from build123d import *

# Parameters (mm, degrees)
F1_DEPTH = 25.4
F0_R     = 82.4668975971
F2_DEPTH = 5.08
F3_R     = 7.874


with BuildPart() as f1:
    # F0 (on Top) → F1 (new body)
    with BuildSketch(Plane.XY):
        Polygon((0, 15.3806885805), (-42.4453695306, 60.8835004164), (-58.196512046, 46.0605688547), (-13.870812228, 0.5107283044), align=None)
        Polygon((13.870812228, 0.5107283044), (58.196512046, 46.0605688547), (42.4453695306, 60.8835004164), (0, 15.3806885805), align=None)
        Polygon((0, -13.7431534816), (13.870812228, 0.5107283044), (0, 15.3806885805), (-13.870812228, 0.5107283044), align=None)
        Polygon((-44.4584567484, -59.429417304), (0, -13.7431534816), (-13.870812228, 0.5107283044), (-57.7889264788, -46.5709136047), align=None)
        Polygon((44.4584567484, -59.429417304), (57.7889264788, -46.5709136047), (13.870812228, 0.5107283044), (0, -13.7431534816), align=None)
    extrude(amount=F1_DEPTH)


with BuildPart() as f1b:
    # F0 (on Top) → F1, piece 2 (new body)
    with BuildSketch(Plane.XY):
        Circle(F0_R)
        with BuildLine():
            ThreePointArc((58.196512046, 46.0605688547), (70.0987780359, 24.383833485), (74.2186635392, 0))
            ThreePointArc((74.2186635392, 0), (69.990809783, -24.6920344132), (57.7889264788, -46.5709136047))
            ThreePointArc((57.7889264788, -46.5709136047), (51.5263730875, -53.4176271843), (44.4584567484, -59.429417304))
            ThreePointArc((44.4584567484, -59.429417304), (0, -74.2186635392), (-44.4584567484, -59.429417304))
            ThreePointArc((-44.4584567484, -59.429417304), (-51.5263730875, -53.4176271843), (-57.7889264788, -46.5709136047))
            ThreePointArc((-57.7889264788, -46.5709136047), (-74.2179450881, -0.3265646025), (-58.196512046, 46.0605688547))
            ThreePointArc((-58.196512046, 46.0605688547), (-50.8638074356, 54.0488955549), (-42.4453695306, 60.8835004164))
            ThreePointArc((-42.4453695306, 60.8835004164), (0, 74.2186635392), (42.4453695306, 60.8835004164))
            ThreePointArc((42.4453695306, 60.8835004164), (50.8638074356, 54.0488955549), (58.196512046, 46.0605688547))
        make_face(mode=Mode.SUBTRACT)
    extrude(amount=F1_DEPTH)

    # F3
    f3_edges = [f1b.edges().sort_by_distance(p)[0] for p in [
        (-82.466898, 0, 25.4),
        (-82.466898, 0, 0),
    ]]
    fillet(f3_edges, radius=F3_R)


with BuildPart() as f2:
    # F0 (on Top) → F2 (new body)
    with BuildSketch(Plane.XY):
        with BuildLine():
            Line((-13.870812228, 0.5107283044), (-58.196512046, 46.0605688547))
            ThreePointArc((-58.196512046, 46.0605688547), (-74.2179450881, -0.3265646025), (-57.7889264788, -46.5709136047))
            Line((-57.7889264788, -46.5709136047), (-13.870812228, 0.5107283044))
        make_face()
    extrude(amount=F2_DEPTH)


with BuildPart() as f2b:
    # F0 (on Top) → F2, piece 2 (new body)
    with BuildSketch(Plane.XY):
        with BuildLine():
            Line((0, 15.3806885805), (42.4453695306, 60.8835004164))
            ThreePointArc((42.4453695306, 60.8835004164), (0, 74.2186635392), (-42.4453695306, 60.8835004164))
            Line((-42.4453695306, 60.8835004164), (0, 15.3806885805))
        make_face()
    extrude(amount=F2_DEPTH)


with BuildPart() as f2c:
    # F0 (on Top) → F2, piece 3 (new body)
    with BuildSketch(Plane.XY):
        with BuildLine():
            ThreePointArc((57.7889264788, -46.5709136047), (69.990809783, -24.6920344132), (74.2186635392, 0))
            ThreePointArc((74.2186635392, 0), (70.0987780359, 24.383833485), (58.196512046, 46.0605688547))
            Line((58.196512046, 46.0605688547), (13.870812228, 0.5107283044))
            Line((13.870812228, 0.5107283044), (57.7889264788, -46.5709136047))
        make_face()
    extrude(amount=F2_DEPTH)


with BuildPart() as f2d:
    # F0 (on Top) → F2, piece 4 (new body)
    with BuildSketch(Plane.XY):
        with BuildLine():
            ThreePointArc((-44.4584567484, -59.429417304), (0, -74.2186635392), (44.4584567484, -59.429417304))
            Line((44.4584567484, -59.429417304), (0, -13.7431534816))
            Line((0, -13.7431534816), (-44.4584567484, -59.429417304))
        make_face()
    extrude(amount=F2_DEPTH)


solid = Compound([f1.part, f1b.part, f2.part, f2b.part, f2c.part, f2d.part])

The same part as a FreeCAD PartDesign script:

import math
import FreeCAD as App
import Part
import Sketcher

V = App.Vector
Q = App.Units.Quantity


def edges_at(feature, points):
    """Names of the edges that pass closest to the given points."""
    edges = feature.Shape.Edges
    near = lambda p: min(range(len(edges)), key=lambda i: edges[i].distToShape(Part.Vertex(*p))[0])
    return sorted({f"Edge{near(p) + 1}" for p in points})


def add_polygon(sketch, points):
    """Adds a closed chain of lines whose ends are joined by coincident constraints."""
    first, n = sketch.GeometryCount, len(points)
    for a, b in zip(points, points[1:] + points[:1]):
        sketch.addGeometry(Part.LineSegment(App.Vector(*a, 0), App.Vector(*b, 0)), False)
    for i in range(n):
        sketch.addConstraint(Sketcher.Constraint("Coincident", first + i, 2, first + (i + 1) % n, 1))

doc = App.newDocument("Part")
body = doc.addObject("PartDesign::Body", "Body")

# Sketch on XY plane
sketch1 = doc.addObject("Sketcher::SketchObject", "Sketch")
body.addObject(sketch1)
sketch1.AttachmentSupport = (doc.XY_Plane, [""])
sketch1.MapMode = "FlatFace"
add_polygon(sketch1, [(0, 15.380689), (-42.44537, 60.8835), (-58.196512, 46.060569), (-13.870812, 0.510728), (-57.788926, -46.570914), (-44.458457, -59.429417), (0, -13.743153), (44.458457, -59.429417), (57.788926, -46.570914), (13.870812, 0.510728), (58.196512, 46.060569), (42.44537, 60.8835)])  # lines 0-11
sketch1.addConstraint(Sketcher.Constraint("Symmetric", 4, 2, 6, 2, -2))
sketch1.addConstraint(Sketcher.Constraint("Symmetric", 3, 2, 7, 2, -2))
sketch1.addConstraint(Sketcher.Constraint("Symmetric", 2, 2, 8, 2, -2))
sketch1.addConstraint(Sketcher.Constraint("Symmetric", 1, 2, 9, 2, -2))
sketch1.addConstraint(Sketcher.Constraint("Symmetric", 0, 2, 10, 2, -2))
sketch1.addConstraint(Sketcher.Constraint("PointOnObject", 5, 2, -2))
sketch1.addConstraint(Sketcher.Constraint("PointOnObject", 11, 2, -2))
sketch1.addConstraint(Sketcher.Constraint("Parallel", 2, 6))
sketch1.addConstraint(Sketcher.Constraint("Parallel", 0, 8))
sketch1.addConstraint(Sketcher.Constraint("Distance", 2, 63.557499))
sketch1.addConstraint(Sketcher.Constraint("DistanceY", -1, 1, 0, 2, 60.8835))
sketch1.addConstraint(Sketcher.Constraint("DistanceX", 1, 2, 2, 2, 44.3257))
sketch1.addConstraint(Sketcher.Constraint("DistanceX", 0, 2, -1, 1, 42.44537))
sketch1.addConstraint(Sketcher.Constraint("DistanceY", -1, 1, 1, 2, 46.060569))
sketch1.addConstraint(Sketcher.Constraint("DistanceY", -1, 1, 11, 2, 15.380689))
sketch1.addConstraint(Sketcher.Constraint("DistanceY", 3, 2, 2, 2, 47.081642))
sketch1.addConstraint(Sketcher.Constraint("DistanceX", 3, 2, 4, 2, 13.33047))
sketch1.addConstraint(Sketcher.Constraint("DistanceY", 5, 2, 2, 2, 14.253882))
sketch1.addConstraint(Sketcher.Constraint("DistanceX", 2, 2, 6, 2, 58.329269))
pad1 = doc.addObject("PartDesign::Pad", "Pad")
body.addObject(pad1)
pad1.Profile = sketch1
pad1.Length = Q("1 in")
body2 = doc.addObject("PartDesign::Body", "Body001")

# Sketch on XY plane
sketch2 = doc.addObject("Sketcher::SketchObject", "Sketch001")
body2.addObject(sketch2)
sketch2.AttachmentSupport = (doc.getObject("XY_Plane001"), [""])
sketch2.MapMode = "FlatFace"
sketch2.addGeometry(Part.Circle(V(0, 0, 0), V(0, 0, 1), 82.466898), False)
sketch2.addGeometry(Part.ArcOfCircle(Part.Circle(V(0, 0, 0), V(0, 0, 1), 74.218664), math.radians(38.360422), math.radians(55.117442)), False)
sketch2.addGeometry(Part.ArcOfCircle(Part.Circle(V(0, 0, 0), V(0, 0, 1), 74.218664), math.radians(0), math.radians(38.360422)), False)
sketch2.addGeometry(Part.ArcOfCircle(Part.Circle(V(0, 0, 0), V(0, 0, 1), 74.218664), math.radians(-38.86463), math.radians(0)), False)
sketch2.addGeometry(Part.ArcOfCircle(Part.Circle(V(0, 0, 0), V(0, 0, 1), 74.218664), math.radians(-53.200264), math.radians(-38.86463)), False)
sketch2.addGeometry(Part.ArcOfCircle(Part.Circle(V(0, 0, 0), V(0, 0, 1), 74.218664), math.radians(-126.799736), math.radians(-53.200264)), False)
sketch2.addGeometry(Part.ArcOfCircle(Part.Circle(V(0, 0, 0), V(0, 0, 1), 74.218664), math.radians(-141.13537), math.radians(-126.799736)), False)
sketch2.addGeometry(Part.ArcOfCircle(Part.Circle(V(0, 0, 0), V(0, 0, 1), 74.218664), math.radians(141.639578), math.radians(218.86463)), False)
sketch2.addGeometry(Part.ArcOfCircle(Part.Circle(V(0, 0, 0), V(0, 0, 1), 74.218664), math.radians(124.882558), math.radians(141.639578)), False)
sketch2.addGeometry(Part.ArcOfCircle(Part.Circle(V(0, 0, 0), V(0, 0, 1), 74.218664), math.radians(55.117442), math.radians(124.882558)), False)
sketch2.addConstraint(Sketcher.Constraint("Tangent", 1, 1, 2, 2))
sketch2.addConstraint(Sketcher.Constraint("Tangent", 2, 1, 3, 2))
sketch2.addConstraint(Sketcher.Constraint("Tangent", 3, 1, 4, 2))
sketch2.addConstraint(Sketcher.Constraint("Tangent", 4, 1, 5, 2))
sketch2.addConstraint(Sketcher.Constraint("Tangent", 5, 1, 6, 2))
sketch2.addConstraint(Sketcher.Constraint("Tangent", 6, 1, 7, 2))
sketch2.addConstraint(Sketcher.Constraint("Tangent", 7, 1, 8, 2))
sketch2.addConstraint(Sketcher.Constraint("Tangent", 8, 1, 9, 2))
sketch2.addConstraint(Sketcher.Constraint("Tangent", 9, 1, 1, 2))
sketch2.addConstraint(Sketcher.Constraint("Coincident", 0, 3, -1, 1))
sketch2.addConstraint(Sketcher.Constraint("Coincident", 1, 3, -1, 1))
sketch2.addConstraint(Sketcher.Constraint("Coincident", 3, 3, -1, 1))
sketch2.addConstraint(Sketcher.Constraint("Coincident", 5, 3, -1, 1))
sketch2.addConstraint(Sketcher.Constraint("Coincident", 7, 3, -1, 1))
sketch2.addConstraint(Sketcher.Constraint("PointOnObject", 2, 1, -1))
sketch2.addConstraint(Sketcher.Constraint("Horizontal", 4, 1, 5, 1))
sketch2.addConstraint(Sketcher.Constraint("Horizontal", 3, 1, 6, 1))
sketch2.addConstraint(Sketcher.Constraint("Horizontal", 1, 1, 7, 1))
sketch2.addConstraint(Sketcher.Constraint("Horizontal", 8, 1, 9, 1))
sketch2.addConstraint(Sketcher.Constraint("Diameter", 0, 164.933795))
sketch2.addConstraint(Sketcher.Constraint("Radius", 1, 74.218664))
sketch2.addConstraint(Sketcher.Constraint("DistanceY", -1, 1, 8, 1, 60.8835))
sketch2.addConstraint(Sketcher.Constraint("DistanceY", -1, 1, 1, 1, 46.060569))
sketch2.addConstraint(Sketcher.Constraint("DistanceX", 4, 1, 3, 1, 13.33047))
sketch2.addConstraint(Sketcher.Constraint("DistanceX", -1, 1, 3, 1, 57.788926))
pad2 = doc.addObject("PartDesign::Pad", "Pad001")
body2.addObject(pad2)
pad2.Profile = sketch2
pad2.Length = Q("1 in")
doc.recompute()

fillet = doc.addObject("PartDesign::Fillet", "Fillet")
body2.addObject(fillet)
fillet.Base = (pad2, edges_at(pad2, [(-82.467, 0, 25.4), (-82.467, 0, 0)]))
fillet.Radius = Q("0.31 in")
body3 = doc.addObject("PartDesign::Body", "Body002")

# Sketch on XY plane
sketch3 = doc.addObject("Sketcher::SketchObject", "Sketch002")
body3.addObject(sketch3)
sketch3.AttachmentSupport = (doc.getObject("XY_Plane002"), [""])
sketch3.MapMode = "FlatFace"
sketch3.addGeometry(Part.LineSegment(V(-13.870812, 0.510728, 0), V(-58.196512, 46.060569, 0)), False)
sketch3.addGeometry(Part.ArcOfCircle(Part.Circle(V(0, 0, 0), V(0, 0, 1), 74.218664), math.radians(141.639578), math.radians(218.86463)), False)
sketch3.addGeometry(Part.LineSegment(V(-57.788926, -46.570914, 0), V(-13.870812, 0.510728, 0)), False)
sketch3.addConstraint(Sketcher.Constraint("Coincident", 0, 2, 1, 1))
sketch3.addConstraint(Sketcher.Constraint("Coincident", 1, 2, 2, 1))
sketch3.addConstraint(Sketcher.Constraint("Coincident", 2, 2, 0, 1))
sketch3.addConstraint(Sketcher.Constraint("Coincident", 1, 3, -1, 1))
sketch3.addConstraint(Sketcher.Constraint("Radius", 1, 74.218664))
sketch3.addConstraint(Sketcher.Constraint("Distance", 0, 63.557499))
sketch3.addConstraint(Sketcher.Constraint("DistanceX", 0, 2, 2, 2, 44.3257))
sketch3.addConstraint(Sketcher.Constraint("DistanceY", -1, 1, 0, 2, 46.060569))
sketch3.addConstraint(Sketcher.Constraint("DistanceY", 1, 2, 2, 2, 47.081642))
pad3 = doc.addObject("PartDesign::Pad", "Pad002")
body3.addObject(pad3)
pad3.Profile = sketch3
pad3.Length = Q("0.2 in")
body4 = doc.addObject("PartDesign::Body", "Body003")

# Sketch on XY plane
sketch4 = doc.addObject("Sketcher::SketchObject", "Sketch003")
body4.addObject(sketch4)
sketch4.AttachmentSupport = (doc.getObject("XY_Plane003"), [""])
sketch4.MapMode = "FlatFace"
sketch4.addGeometry(Part.LineSegment(V(0, 15.380689, 0), V(42.44537, 60.8835, 0)), False)
sketch4.addGeometry(Part.ArcOfCircle(Part.Circle(V(0, 0, 0), V(0, 0, 1), 74.218664), math.radians(55.117442), math.radians(124.882558)), False)
sketch4.addGeometry(Part.LineSegment(V(-42.44537, 60.8835, 0), V(0, 15.380689, 0)), False)
sketch4.addConstraint(Sketcher.Constraint("Coincident", 0, 2, 1, 1))
sketch4.addConstraint(Sketcher.Constraint("Coincident", 1, 2, 2, 1))
sketch4.addConstraint(Sketcher.Constraint("Coincident", 2, 2, 0, 1))
sketch4.addConstraint(Sketcher.Constraint("Coincident", 1, 3, -1, 1))
sketch4.addConstraint(Sketcher.Constraint("PointOnObject", 2, 2, -2))
sketch4.addConstraint(Sketcher.Constraint("Horizontal", 0, 2, 1, 2))
sketch4.addConstraint(Sketcher.Constraint("Radius", 1, 74.218664))
sketch4.addConstraint(Sketcher.Constraint("DistanceY", -1, 1, 0, 2, 60.8835))
sketch4.addConstraint(Sketcher.Constraint("DistanceY", -1, 1, 2, 2, 15.380689))
pad4 = doc.addObject("PartDesign::Pad", "Pad003")
body4.addObject(pad4)
pad4.Profile = sketch4
pad4.Length = Q("0.2 in")
body5 = doc.addObject("PartDesign::Body", "Body004")

# Sketch on XY plane
sketch5 = doc.addObject("Sketcher::SketchObject", "Sketch004")
body5.addObject(sketch5)
sketch5.AttachmentSupport = (doc.getObject("XY_Plane004"), [""])
sketch5.MapMode = "FlatFace"
sketch5.addGeometry(Part.ArcOfCircle(Part.Circle(V(0, 0, 0), V(0, 0, 1), 74.218664), math.radians(-38.86463), math.radians(0)), False)
sketch5.addGeometry(Part.ArcOfCircle(Part.Circle(V(0, 0, 0), V(0, 0, 1), 74.218664), math.radians(0), math.radians(38.360422)), False)
sketch5.addGeometry(Part.LineSegment(V(58.196512, 46.060569, 0), V(13.870812, 0.510728, 0)), False)
sketch5.addGeometry(Part.LineSegment(V(13.870812, 0.510728, 0), V(57.788926, -46.570914, 0)), False)
sketch5.addConstraint(Sketcher.Constraint("Tangent", 0, 2, 1, 1))
sketch5.addConstraint(Sketcher.Constraint("Coincident", 1, 2, 2, 1))
sketch5.addConstraint(Sketcher.Constraint("Coincident", 2, 2, 3, 1))
sketch5.addConstraint(Sketcher.Constraint("Coincident", 3, 2, 0, 1))
sketch5.addConstraint(Sketcher.Constraint("Coincident", 0, 3, -1, 1))
sketch5.addConstraint(Sketcher.Constraint("Equal", 0, 1))
sketch5.addConstraint(Sketcher.Constraint("PointOnObject", 0, 2, -1))
sketch5.addConstraint(Sketcher.Constraint("Radius", 0, 74.218664))
sketch5.addConstraint(Sketcher.Constraint("Distance", 2, 63.557499))
sketch5.addConstraint(Sketcher.Constraint("DistanceX", 2, 2, 1, 2, 44.3257))
sketch5.addConstraint(Sketcher.Constraint("DistanceY", -1, 1, 1, 2, 46.060569))
sketch5.addConstraint(Sketcher.Constraint("DistanceY", 3, 2, 2, 2, 47.081642))
pad5 = doc.addObject("PartDesign::Pad", "Pad004")
body5.addObject(pad5)
pad5.Profile = sketch5
pad5.Length = Q("0.2 in")
body6 = doc.addObject("PartDesign::Body", "Body005")

# Sketch on XY plane
sketch6 = doc.addObject("Sketcher::SketchObject", "Sketch005")
body6.addObject(sketch6)
sketch6.AttachmentSupport = (doc.getObject("XY_Plane005"), [""])
sketch6.MapMode = "FlatFace"
sketch6.addGeometry(Part.ArcOfCircle(Part.Circle(V(0, 0, 0), V(0, 0, 1), 74.218664), math.radians(-126.799736), math.radians(-53.200264)), False)
sketch6.addGeometry(Part.LineSegment(V(44.458457, -59.429417, 0), V(0, -13.743153, 0)), False)
sketch6.addGeometry(Part.LineSegment(V(0, -13.743153, 0), V(-44.458457, -59.429417, 0)), False)
sketch6.addConstraint(Sketcher.Constraint("Coincident", 0, 2, 1, 1))
sketch6.addConstraint(Sketcher.Constraint("Coincident", 1, 2, 2, 1))
sketch6.addConstraint(Sketcher.Constraint("Coincident", 2, 2, 0, 1))
sketch6.addConstraint(Sketcher.Constraint("Coincident", 0, 3, -1, 1))
sketch6.addConstraint(Sketcher.Constraint("PointOnObject", 1, 2, -2))
sketch6.addConstraint(Sketcher.Constraint("Horizontal", 0, 2, 2, 2))
sketch6.addConstraint(Sketcher.Constraint("Radius", 0, 74.218664))
sketch6.addConstraint(Sketcher.Constraint("Distance", 1, 63.747855))
sketch6.addConstraint(Sketcher.Constraint("DistanceX", -1, 1, 0, 2, 44.458457))
pad6 = doc.addObject("PartDesign::Pad", "Pad005")
body6.addObject(pad6)
pad6.Profile = sketch6
pad6.Length = Q("0.2 in")

doc.recompute()
